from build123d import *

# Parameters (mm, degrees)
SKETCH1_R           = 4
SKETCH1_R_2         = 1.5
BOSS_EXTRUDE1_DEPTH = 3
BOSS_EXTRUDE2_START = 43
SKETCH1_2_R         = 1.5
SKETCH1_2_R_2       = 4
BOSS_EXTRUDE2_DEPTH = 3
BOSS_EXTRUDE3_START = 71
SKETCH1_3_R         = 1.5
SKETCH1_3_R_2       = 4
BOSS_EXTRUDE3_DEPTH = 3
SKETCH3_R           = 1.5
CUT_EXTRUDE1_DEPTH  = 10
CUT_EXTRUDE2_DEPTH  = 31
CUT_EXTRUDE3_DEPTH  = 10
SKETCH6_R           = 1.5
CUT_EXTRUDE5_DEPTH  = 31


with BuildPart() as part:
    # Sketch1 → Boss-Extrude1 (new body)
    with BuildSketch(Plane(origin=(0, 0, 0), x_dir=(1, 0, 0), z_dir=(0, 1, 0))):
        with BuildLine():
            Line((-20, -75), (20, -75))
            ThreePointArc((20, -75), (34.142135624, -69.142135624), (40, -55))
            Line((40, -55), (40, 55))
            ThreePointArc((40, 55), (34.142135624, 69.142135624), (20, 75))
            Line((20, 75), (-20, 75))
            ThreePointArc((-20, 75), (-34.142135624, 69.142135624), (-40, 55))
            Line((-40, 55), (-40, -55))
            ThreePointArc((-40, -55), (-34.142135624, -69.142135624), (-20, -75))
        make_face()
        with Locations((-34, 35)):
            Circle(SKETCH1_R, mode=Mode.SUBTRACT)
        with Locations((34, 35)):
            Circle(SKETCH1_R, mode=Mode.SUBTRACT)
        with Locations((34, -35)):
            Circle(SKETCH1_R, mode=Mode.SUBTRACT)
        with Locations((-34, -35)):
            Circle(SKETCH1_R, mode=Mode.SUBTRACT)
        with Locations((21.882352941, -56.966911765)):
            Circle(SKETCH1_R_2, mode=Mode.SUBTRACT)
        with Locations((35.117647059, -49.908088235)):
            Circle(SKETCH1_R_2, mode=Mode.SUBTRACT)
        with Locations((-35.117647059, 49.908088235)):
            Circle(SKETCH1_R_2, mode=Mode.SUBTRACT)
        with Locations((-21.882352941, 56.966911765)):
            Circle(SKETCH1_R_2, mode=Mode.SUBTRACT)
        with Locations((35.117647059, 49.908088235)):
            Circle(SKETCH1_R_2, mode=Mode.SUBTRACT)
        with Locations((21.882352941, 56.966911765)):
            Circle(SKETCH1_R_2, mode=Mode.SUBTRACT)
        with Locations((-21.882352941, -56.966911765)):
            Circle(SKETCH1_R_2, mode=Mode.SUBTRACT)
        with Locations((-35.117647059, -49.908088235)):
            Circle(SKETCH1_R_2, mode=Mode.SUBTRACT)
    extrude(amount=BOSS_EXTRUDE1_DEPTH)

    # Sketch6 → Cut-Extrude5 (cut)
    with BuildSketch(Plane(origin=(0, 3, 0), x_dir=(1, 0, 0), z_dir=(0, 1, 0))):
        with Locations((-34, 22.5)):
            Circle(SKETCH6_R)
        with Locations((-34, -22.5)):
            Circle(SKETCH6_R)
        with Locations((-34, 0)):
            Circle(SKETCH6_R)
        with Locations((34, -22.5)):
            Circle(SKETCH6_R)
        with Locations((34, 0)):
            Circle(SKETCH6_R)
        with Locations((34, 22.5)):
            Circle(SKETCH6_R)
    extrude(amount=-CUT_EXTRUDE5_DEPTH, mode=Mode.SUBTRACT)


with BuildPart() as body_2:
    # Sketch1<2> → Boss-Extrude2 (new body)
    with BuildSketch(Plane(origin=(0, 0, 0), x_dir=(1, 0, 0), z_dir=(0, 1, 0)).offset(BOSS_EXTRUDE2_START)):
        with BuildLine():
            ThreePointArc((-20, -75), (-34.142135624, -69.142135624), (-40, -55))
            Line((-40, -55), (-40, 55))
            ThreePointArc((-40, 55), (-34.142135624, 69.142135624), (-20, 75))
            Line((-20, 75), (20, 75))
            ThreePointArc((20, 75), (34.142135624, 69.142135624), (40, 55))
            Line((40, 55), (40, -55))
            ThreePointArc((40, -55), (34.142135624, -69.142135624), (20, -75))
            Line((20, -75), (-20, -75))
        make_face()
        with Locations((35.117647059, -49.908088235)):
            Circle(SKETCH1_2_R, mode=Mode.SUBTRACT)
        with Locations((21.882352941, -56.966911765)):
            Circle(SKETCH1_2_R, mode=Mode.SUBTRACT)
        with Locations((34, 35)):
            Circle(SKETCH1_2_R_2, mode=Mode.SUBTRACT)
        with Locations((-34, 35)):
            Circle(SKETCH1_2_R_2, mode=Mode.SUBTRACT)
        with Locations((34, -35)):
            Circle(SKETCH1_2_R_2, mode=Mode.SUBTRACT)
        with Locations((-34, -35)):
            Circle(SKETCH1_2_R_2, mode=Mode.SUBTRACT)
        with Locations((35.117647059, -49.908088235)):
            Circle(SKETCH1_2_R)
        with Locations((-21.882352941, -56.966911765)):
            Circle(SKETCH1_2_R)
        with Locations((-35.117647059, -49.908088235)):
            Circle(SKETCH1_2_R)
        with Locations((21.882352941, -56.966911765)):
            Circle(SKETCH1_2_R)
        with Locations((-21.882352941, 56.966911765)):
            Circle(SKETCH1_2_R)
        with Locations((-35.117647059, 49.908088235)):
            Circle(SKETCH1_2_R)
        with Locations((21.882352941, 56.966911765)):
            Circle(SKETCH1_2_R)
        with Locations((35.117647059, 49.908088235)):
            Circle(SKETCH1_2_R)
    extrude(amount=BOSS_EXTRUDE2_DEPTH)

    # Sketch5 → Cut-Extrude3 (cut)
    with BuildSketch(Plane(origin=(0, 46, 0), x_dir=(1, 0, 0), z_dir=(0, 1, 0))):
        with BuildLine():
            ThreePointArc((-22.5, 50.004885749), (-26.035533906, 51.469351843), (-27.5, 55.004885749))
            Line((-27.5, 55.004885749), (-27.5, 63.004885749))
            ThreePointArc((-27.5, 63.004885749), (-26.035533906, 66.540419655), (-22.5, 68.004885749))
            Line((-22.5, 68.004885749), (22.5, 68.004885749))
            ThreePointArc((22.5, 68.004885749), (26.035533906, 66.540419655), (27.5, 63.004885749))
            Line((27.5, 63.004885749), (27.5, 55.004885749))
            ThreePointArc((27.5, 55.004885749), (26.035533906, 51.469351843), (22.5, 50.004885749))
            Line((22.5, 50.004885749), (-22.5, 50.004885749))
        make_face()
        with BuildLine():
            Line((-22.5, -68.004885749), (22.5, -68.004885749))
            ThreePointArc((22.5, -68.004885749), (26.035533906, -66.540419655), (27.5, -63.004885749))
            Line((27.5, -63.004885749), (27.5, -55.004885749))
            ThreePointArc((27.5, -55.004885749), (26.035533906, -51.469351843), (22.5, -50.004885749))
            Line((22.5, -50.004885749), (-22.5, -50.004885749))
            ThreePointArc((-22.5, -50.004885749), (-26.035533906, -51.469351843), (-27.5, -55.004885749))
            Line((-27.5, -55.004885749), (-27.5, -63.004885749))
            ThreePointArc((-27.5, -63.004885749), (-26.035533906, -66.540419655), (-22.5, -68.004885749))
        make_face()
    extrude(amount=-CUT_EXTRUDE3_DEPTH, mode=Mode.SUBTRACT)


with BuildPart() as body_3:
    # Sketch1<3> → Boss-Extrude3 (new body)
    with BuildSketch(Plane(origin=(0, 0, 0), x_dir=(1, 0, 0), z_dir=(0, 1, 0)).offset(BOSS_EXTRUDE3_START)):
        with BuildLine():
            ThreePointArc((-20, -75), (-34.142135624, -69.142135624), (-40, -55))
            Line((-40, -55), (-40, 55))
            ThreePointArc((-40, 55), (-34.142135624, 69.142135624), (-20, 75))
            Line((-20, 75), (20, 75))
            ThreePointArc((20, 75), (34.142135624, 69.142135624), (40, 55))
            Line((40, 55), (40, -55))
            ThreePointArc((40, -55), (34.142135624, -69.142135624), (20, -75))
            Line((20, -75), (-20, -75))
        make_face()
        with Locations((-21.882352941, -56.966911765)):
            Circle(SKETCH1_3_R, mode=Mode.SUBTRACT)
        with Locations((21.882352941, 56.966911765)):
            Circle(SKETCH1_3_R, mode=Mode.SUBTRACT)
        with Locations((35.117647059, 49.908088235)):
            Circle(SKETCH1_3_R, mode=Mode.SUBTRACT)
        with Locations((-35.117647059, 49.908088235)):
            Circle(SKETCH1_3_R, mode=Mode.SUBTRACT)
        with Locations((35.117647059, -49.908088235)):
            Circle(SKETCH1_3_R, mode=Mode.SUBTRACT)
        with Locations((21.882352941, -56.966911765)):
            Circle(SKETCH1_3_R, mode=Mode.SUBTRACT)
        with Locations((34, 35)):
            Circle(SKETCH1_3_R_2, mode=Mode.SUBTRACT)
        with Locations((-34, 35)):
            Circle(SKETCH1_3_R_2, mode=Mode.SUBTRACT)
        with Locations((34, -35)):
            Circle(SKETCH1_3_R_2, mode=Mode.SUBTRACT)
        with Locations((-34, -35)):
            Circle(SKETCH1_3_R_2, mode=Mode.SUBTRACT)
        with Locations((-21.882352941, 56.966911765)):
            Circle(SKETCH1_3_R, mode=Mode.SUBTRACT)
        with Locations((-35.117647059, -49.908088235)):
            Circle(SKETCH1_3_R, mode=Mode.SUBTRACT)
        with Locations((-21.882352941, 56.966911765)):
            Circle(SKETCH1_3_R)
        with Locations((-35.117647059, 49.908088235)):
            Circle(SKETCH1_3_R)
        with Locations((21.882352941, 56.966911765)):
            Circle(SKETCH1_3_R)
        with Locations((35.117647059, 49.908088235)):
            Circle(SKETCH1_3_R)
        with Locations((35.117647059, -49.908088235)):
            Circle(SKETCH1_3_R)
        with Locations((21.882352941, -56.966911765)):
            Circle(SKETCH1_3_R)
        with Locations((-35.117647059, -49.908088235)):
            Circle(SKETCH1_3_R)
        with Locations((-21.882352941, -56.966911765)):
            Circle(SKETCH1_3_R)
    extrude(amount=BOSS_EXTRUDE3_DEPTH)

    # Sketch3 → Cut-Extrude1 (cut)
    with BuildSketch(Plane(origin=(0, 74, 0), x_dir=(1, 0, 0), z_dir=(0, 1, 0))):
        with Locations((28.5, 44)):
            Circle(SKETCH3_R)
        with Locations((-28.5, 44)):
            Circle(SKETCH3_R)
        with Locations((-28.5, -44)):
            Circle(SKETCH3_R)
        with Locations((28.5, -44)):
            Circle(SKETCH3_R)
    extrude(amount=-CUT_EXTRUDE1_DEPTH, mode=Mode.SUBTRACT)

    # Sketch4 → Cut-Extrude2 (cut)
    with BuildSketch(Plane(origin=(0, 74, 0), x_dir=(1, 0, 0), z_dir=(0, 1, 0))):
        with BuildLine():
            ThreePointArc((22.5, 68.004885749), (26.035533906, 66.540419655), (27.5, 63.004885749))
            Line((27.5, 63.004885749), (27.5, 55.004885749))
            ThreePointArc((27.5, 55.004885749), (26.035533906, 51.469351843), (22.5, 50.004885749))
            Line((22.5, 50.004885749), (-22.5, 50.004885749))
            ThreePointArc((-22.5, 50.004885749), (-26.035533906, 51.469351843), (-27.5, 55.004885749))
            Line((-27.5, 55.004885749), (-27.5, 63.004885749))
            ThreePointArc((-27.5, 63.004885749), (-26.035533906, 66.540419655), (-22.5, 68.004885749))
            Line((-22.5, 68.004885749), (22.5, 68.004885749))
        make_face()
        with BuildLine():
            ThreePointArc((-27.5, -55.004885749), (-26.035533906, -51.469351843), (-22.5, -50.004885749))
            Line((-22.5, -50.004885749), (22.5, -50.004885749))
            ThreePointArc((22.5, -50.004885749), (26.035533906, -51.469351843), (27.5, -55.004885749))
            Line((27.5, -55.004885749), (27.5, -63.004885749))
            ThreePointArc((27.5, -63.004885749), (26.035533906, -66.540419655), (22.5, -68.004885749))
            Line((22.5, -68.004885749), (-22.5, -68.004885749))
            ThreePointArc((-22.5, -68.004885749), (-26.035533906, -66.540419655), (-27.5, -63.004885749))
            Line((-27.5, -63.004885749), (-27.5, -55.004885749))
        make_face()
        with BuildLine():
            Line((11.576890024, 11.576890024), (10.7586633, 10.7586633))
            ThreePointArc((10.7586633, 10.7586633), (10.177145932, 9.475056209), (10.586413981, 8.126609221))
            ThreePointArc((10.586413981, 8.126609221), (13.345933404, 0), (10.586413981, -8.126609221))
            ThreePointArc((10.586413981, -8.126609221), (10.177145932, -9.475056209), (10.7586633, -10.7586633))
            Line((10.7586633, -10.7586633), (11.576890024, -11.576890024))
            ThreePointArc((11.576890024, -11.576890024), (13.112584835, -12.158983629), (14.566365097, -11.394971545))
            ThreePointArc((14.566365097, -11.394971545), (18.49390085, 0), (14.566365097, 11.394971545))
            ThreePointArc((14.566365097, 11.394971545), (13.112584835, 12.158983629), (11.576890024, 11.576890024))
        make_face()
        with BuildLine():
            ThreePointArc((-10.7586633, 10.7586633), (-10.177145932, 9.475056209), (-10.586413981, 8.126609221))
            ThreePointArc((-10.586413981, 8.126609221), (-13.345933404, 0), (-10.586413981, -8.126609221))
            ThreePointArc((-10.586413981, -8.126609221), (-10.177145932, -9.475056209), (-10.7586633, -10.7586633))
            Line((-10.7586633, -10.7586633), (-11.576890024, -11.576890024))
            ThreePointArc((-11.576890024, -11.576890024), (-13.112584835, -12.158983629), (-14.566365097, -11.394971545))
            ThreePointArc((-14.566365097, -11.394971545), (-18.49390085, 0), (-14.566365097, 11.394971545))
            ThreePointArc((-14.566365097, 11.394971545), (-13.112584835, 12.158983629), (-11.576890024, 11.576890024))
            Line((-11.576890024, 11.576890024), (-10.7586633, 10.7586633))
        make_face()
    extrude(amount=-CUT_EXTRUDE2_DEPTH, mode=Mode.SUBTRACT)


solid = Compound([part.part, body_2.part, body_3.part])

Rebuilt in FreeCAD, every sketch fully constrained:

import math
import FreeCAD as App
import Part
import Sketcher

V = App.Vector

doc = App.newDocument("Part")
params = doc.addObject("Spreadsheet::Sheet", "Params")
for row, (alias, value) in enumerate([
    ("sketch1_diameter", "3 mm"),
    ("sketch1_diameter2", "8 mm"),
    ("sketch1_radius", "20 mm"),
    ("sketch1_width", "40 mm"),
    ("sketch1_height", "110 mm"),
    ("pad1_length", "3 mm"),
    ("sketch2_diameter", "3 mm"),
    ("pocket1_length", "31 mm"),
    ("sketch3_diameter", "8 mm"),
    ("sketch3_radius", "20 mm"),
    ("sketch3_width", "40 mm"),
    ("sketch3_height", "110 mm"),
    ("pad2_length", "3 mm"),
    ("sketch4_radius", "5 mm"),
    ("sketch4_width", "45 mm"),
    ("sketch4_height", "8 mm"),
    ("pocket2_length", "10 mm"),
    ("sketch5_diameter", "8 mm"),
    ("sketch5_radius", "20 mm"),
    ("sketch5_width", "40 mm"),
    ("sketch5_height", "110 mm"),
    ("pad3_length", "3 mm"),
    ("sketch6_diameter", "3 mm"),
    ("pocket3_length", "10 mm"),
    ("sketch7_radius", "5 mm"),
    ("sketch7_radius2", "2 mm"),
    ("sketch7_width", "45 mm"),
    ("sketch7_height", "8 mm"),
    ("pocket4_length", "31 mm"),
], start=1):
    params.set(f"A{row}", alias)
    params.set(f"B{row}", "=" + value)
    params.setAlias(f"B{row}", alias)

body = doc.addObject("PartDesign::Body", "Body")

# Sketch on XZ plane
sketch1 = doc.addObject("Sketcher::SketchObject", "Sketch")
body.addObject(sketch1)
sketch1.AttachmentSupport = (doc.XZ_Plane, [""])
sketch1.MapMode = "FlatFace"
sketch1.addGeometry([
    Part.LineSegment(V(-20, 75, 0), V(20, 75, 0)),  # 0
    Part.ArcOfCircle(Part.Circle(V(20, 55, 0), V(0, 0, 1), 20), math.radians(0), math.radians(90)),  # 1
    Part.LineSegment(V(40, 55, 0), V(40, -55, 0)),  # 2
    Part.ArcOfCircle(Part.Circle(V(20, -55, 0), V(0, 0, 1), 20), math.radians(-90), math.radians(0)),  # 3
    Part.LineSegment(V(20, -75, 0), V(-20, -75, 0)),  # 4
    Part.ArcOfCircle(Part.Circle(V(-20, -55, 0), V(0, 0, 1), 20), math.radians(180), math.radians(270)),  # 5
    Part.LineSegment(V(-40, -55, 0), V(-40, 55, 0)),  # 6
    Part.ArcOfCircle(Part.Circle(V(-20, 55, 0), V(0, 0, 1), 20), math.radians(90), math.radians(180)),  # 7
    Part.Circle(V(-35.1, 49.9, 0), V(0, 0, 1), 1.5),  # 8
    Part.Circle(V(-21.9, 57, 0), V(0, 0, 1), 1.5),  # 9
    Part.Circle(V(-34, 35, 0), V(0, 0, 1), 4),  # 10
    Part.Circle(V(21.9, 57, 0), V(0, 0, 1), 1.5),  # 11
    Part.Circle(V(35.1, 49.9, 0), V(0, 0, 1), 1.5),  # 12
    Part.Circle(V(34, 35, 0), V(0, 0, 1), 4),  # 13
    Part.Circle(V(-34, -35, 0), V(0, 0, 1), 4),  # 14
    Part.Circle(V(-35.1, -49.9, 0), V(0, 0, 1), 1.5),  # 15
    Part.Circle(V(-21.9, -57, 0), V(0, 0, 1), 1.5),  # 16
    Part.Circle(V(34, -35, 0), V(0, 0, 1), 4),  # 17
    Part.Circle(V(21.9, -57, 0), V(0, 0, 1), 1.5),  # 18
    Part.Circle(V(35.1, -49.9, 0), V(0, 0, 1), 1.5),  # 19
], False)
sketch1.addConstraint([
    Sketcher.Constraint("Tangent", 0, 2, 1, 2),
    Sketcher.Constraint("Tangent", 1, 1, 2, 1),
    Sketcher.Constraint("Tangent", 2, 2, 3, 2),
    Sketcher.Constraint("Tangent", 3, 1, 4, 1),
    Sketcher.Constraint("Tangent", 4, 2, 5, 2),
    Sketcher.Constraint("Tangent", 5, 1, 6, 1),
    Sketcher.Constraint("Tangent", 6, 2, 7, 2),
    Sketcher.Constraint("Tangent", 7, 1, 0, 1),
    Sketcher.Constraint("Horizontal", 0),
    Sketcher.Constraint("Vertical", 2),
    Sketcher.Constraint("Horizontal", 4),
    Sketcher.Constraint("Vertical", 6),
    Sketcher.Constraint("Equal", 1, 3),
    Sketcher.Constraint("Equal", 3, 5),
    Sketcher.Constraint("Equal", 5, 7),
    Sketcher.Constraint("Equal", 8, 9),
    Sketcher.Constraint("Equal", 9, 11),
    Sketcher.Constraint("Equal", 11, 12),
    Sketcher.Constraint("Equal", 10, 13),
    Sketcher.Constraint("Equal", 13, 14),
    Sketcher.Constraint("Equal", 12, 15),
    Sketcher.Constraint("Equal", 15, 16),
    Sketcher.Constraint("Equal", 14, 17),
    Sketcher.Constraint("Equal", 16, 18),
    Sketcher.Constraint("Equal", 18, 19),
    Sketcher.Constraint("Symmetric", 1, 3, 5, 3, -1, 1),
    Sketcher.Constraint("Symmetric", 13, 3, 14, 3, -1, 1),
    Sketcher.Constraint("Symmetric", 12, 3, 15, 3, -1, 1),
    Sketcher.Constraint("Symmetric", 11, 3, 16, 3, -1, 1),
    Sketcher.Constraint("Symmetric", 10, 3, 17, 3, -1, 1),
    Sketcher.Constraint("Symmetric", 9, 3, 18, 3, -1, 1),
    Sketcher.Constraint("Symmetric", 8, 3, 19, 3, -1, 1),
    Sketcher.Constraint("Symmetric", 9, 3, 11, 3, -2),
    Sketcher.Constraint("Symmetric", 8, 3, 12, 3, -2),
    Sketcher.Constraint("Symmetric", 10, 3, 13, 3, -2),
    Sketcher.Constraint("Diameter", 8, 3.0),
    Sketcher.Constraint("Diameter", 10, 8.0),
    Sketcher.Constraint("Radius", 1, 20.0),
    Sketcher.Constraint("DistanceX", 0, 1, 0, 2, 40.0),
    Sketcher.Constraint("DistanceY", 2, 2, 2, 1, 110.0),
    Sketcher.Constraint("DistanceX", 10, 3, -1, 1, 34.0),
    Sketcher.Constraint("DistanceY", -1, 1, 10, 3, 35.0),
    Sketcher.Constraint("DistanceX", 8, 3, 11, 3, 57.0),
    Sketcher.Constraint("DistanceY", -1, 1, 8, 3, 49.908088),
    Sketcher.Constraint("DistanceY", -1, 1, 9, 3, 56.966912),
    Sketcher.Constraint("DistanceX", 8, 3, -1, 1, 35.117647),
])
sketch1.setExpression("Constraints[35]", "Params.sketch1_diameter")
sketch1.setExpression("Constraints[36]", "Params.sketch1_diameter2")
sketch1.setExpression("Constraints[37]", "Params.sketch1_radius")
sketch1.setExpression("Constraints[38]", "Params.sketch1_width")
sketch1.setExpression("Constraints[39]", "Params.sketch1_height")
pad1 = doc.addObject("PartDesign::Pad", "Pad")
body.addObject(pad1)
pad1.Profile = sketch1
pad1.setExpression("Length", "Params.pad1_length")
pad1.Reversed = True

# Sketch on XZ plane
sketch2 = doc.addObject("Sketcher::SketchObject", "Sketch001")
body.addObject(sketch2)
sketch2.AttachmentSupport = (doc.XZ_Plane, [""])
sketch2.MapMode = "FlatFace"
sketch2.AttachmentOffset = App.Placement(V(0, 0, -3), App.Rotation())
sketch2.addGeometry([
    Part.Circle(V(-34, -22.5, 0), V(0, 0, 1), 1.5),  # 0
    Part.Circle(V(-34, 22.5, 0), V(0, 0, 1), 1.5),  # 1
    Part.Circle(V(-34, 0, 0), V(0, 0, 1), 1.5),  # 2
    Part.Circle(V(34, 22.5, 0), V(0, 0, 1), 1.5),  # 3
    Part.Circle(V(34, 0, 0), V(0, 0, 1), 1.5),  # 4
    Part.Circle(V(34, -22.5, 0), V(0, 0, 1), 1.5),  # 5
], False)
sketch2.addConstraint([
    Sketcher.Constraint("Equal", 0, 1),
    Sketcher.Constraint("Equal", 1, 2),
    Sketcher.Constraint("Equal", 2, 3),
    Sketcher.Constraint("Equal", 3, 4),
    Sketcher.Constraint("Equal", 4, 5),
    Sketcher.Constraint("Symmetric", 0, 3, 3, 3, -1, 1),
    Sketcher.Constraint("Symmetric", 2, 3, 4, 3, -1, 1),
    Sketcher.Constraint("Symmetric", 1, 3, 5, 3, -1, 1),
    Sketcher.Constraint("Symmetric", 1, 3, 3, 3, -2),
    Sketcher.Constraint("PointOnObject", 2, 3, -1),
    Sketcher.Constraint("Vertical", 1, 3, 2, 3),
    Sketcher.Constraint("Diameter", 0, 3.0),
    Sketcher.Constraint("DistanceX", 0, 3, -1, 1, 34.0),
    Sketcher.Constraint("DistanceY", 0, 3, 1, 3, 45.0),
])
sketch2.setExpression("Constraints[11]", "Params.sketch2_diameter")
pocket1 = doc.addObject("PartDesign::Pocket", "Pocket")
body.addObject(pocket1)
pocket1.Profile = sketch2
pocket1.setExpression("Length", "Params.pocket1_length")
pocket1.Reversed = True
body2 = doc.addObject("PartDesign::Body", "Body001")

# Sketch on XZ plane
sketch3 = doc.addObject("Sketcher::SketchObject", "Sketch002")
body2.addObject(sketch3)
sketch3.AttachmentSupport = (doc.getObject("XZ_Plane001"), [""])
sketch3.MapMode = "FlatFace"
sketch3.AttachmentOffset = App.Placement(V(0, 0, -43), App.Rotation())
sketch3.addGeometry([
    Part.ArcOfCircle(Part.Circle(V(-20, 55, 0), V(0, 0, 1), 20), math.radians(90), math.radians(180)),  # 0
    Part.LineSegment(V(-20, 75, 0), V(20, 75, 0)),  # 1
    Part.ArcOfCircle(Part.Circle(V(20, 55, 0), V(0, 0, 1), 20), math.radians(0), math.radians(90)),  # 2
    Part.LineSegment(V(40, 55, 0), V(40, -55, 0)),  # 3
    Part.ArcOfCircle(Part.Circle(V(20, -55, 0), V(0, 0, 1), 20), math.radians(-90), math.radians(0)),  # 4
    Part.LineSegment(V(20, -75, 0), V(-20, -75, 0)),  # 5
    Part.ArcOfCircle(Part.Circle(V(-20, -55, 0), V(0, 0, 1), 20), math.radians(180), math.radians(270)),  # 6
    Part.LineSegment(V(-40, -55, 0), V(-40, 55, 0)),  # 7
    Part.Circle(V(34, 35, 0), V(0, 0, 1), 4),  # 8
    Part.Circle(V(-34, 35, 0), V(0, 0, 1), 4),  # 9
    Part.Circle(V(34, -35, 0), V(0, 0, 1), 4),  # 10
    Part.Circle(V(-34, -35, 0), V(0, 0, 1), 4),  # 11
], False)
sketch3.addConstraint([
    Sketcher.Constraint("Tangent", 0, 1, 1, 1),
    Sketcher.Constraint("Tangent", 1, 2, 2, 2),
    Sketcher.Constraint("Tangent", 2, 1, 3, 1),
    Sketcher.Constraint("Tangent", 3, 2, 4, 2),
    Sketcher.Constraint("Tangent", 4, 1, 5, 1),
    Sketcher.Constraint("Tangent", 5, 2, 6, 2),
    Sketcher.Constraint("Tangent", 6, 1, 7, 1),
    Sketcher.Constraint("Tangent", 7, 2, 0, 2),
    Sketcher.Constraint("Horizontal", 1),
    Sketcher.Constraint("Vertical", 3),
    Sketcher.Constraint("Horizontal", 5),
    Sketcher.Constraint("Vertical", 7),
    Sketcher.Constraint("Equal", 0, 2),
    Sketcher.Constraint("Equal", 2, 4),
    Sketcher.Constraint("Equal", 4, 6),
    Sketcher.Constraint("Equal", 8, 9),
    Sketcher.Constraint("Equal", 9, 10),
    Sketcher.Constraint("Equal", 10, 11),
    Sketcher.Constraint("Symmetric", 0, 3, 4, 3, -1, 1),
    Sketcher.Constraint("Symmetric", 9, 3, 10, 3, -1, 1),
    Sketcher.Constraint("Symmetric", 8, 3, 11, 3, -1, 1),
    Sketcher.Constraint("Symmetric", 8, 3, 9, 3, -2),
    Sketcher.Constraint("Diameter", 8, 8.0),
    Sketcher.Constraint("Radius", 0, 20.0),
    Sketcher.Constraint("DistanceX", 1, 1, 1, 2, 40.0),
    Sketcher.Constraint("DistanceY", 3, 2, 3, 1, 110.0),
    Sketcher.Constraint("DistanceX", -1, 1, 8, 3, 34.0),
    Sketcher.Constraint("DistanceY", -1, 1, 8, 3, 35.0),
])
sketch3.setExpression("Constraints[22]", "Params.sketch3_diameter")
sketch3.setExpression("Constraints[23]", "Params.sketch3_radius")
sketch3.setExpression("Constraints[24]", "Params.sketch3_width")
sketch3.setExpression("Constraints[25]", "Params.sketch3_height")
pad2 = doc.addObject("PartDesign::Pad", "Pad001")
body2.addObject(pad2)
pad2.Profile = sketch3
pad2.setExpression("Length", "Params.pad2_length")
pad2.Reversed = True

# Sketch on XZ plane
sketch4 = doc.addObject("Sketcher::SketchObject", "Sketch003")
body2.addObject(sketch4)
sketch4.AttachmentSupport = (doc.getObject("XZ_Plane001"), [""])
sketch4.MapMode = "FlatFace"
sketch4.AttachmentOffset = App.Placement(V(0, 0, -46), App.Rotation())
sketch4.addGeometry([
    Part.ArcOfCircle(Part.Circle(V(-22, -55, 0), V(0, 0, 1), 5), math.radians(90), math.radians(180)),  # 0
    Part.LineSegment(V(-22, -50, 0), V(22, -50, 0)),  # 1
    Part.ArcOfCircle(Part.Circle(V(22, -55, 0), V(0, 0, 1), 5), math.radians(0), math.radians(90)),  # 2
    Part.LineSegment(V(28, -55, 0), V(28, -63, 0)),  # 3
    Part.ArcOfCircle(Part.Circle(V(22, -63, 0), V(0, 0, 1), 5), math.radians(-90), math.radians(0)),  # 4
    Part.LineSegment(V(22, -68, 0), V(-22, -68, 0)),  # 5
    Part.ArcOfCircle(Part.Circle(V(-22, -63, 0), V(0, 0, 1), 5), math.radians(180), math.radians(270)),  # 6
    Part.LineSegment(V(-28, -63, 0), V(-28, -55, 0)),  # 7
    Part.LineSegment(V(-22, 68, 0), V(22, 68, 0)),  # 8
    Part.ArcOfCircle(Part.Circle(V(22, 63, 0), V(0, 0, 1), 5), math.radians(0), math.radians(90)),  # 9
    Part.LineSegment(V(28, 63, 0), V(28, 55, 0)),  # 10
    Part.ArcOfCircle(Part.Circle(V(22, 55, 0), V(0, 0, 1), 5), math.radians(-90), math.radians(0)),  # 11
    Part.LineSegment(V(22, 50, 0), V(-22, 50, 0)),  # 12
    Part.ArcOfCircle(Part.Circle(V(-22, 55, 0), V(0, 0, 1), 5), math.radians(180), math.radians(270)),  # 13
    Part.LineSegment(V(-28, 55, 0), V(-28, 63, 0)),  # 14
    Part.ArcOfCircle(Part.Circle(V(-22, 63, 0), V(0, 0, 1), 5), math.radians(90), math.radians(180)),  # 15
], False)
sketch4.addConstraint([
    Sketcher.Constraint("Tangent", 0, 1, 1, 1),
    Sketcher.Constraint("Tangent", 1, 2, 2, 2),
    Sketcher.Constraint("Tangent", 2, 1, 3, 1),
    Sketcher.Constraint("Tangent", 3, 2, 4, 2),
    Sketcher.Constraint("Tangent", 4, 1, 5, 1),
    Sketcher.Constraint("Tangent", 5, 2, 6, 2),
    Sketcher.Constraint("Tangent", 6, 1, 7, 1),
    Sketcher.Constraint("Tangent", 7, 2, 0, 2),
    Sketcher.Constraint("Tangent", 8, 2, 9, 2),
    Sketcher.Constraint("Tangent", 9, 1, 10, 1),
    Sketcher.Constraint("Tangent", 10, 2, 11, 2),
    Sketcher.Constraint("Tangent", 11, 1, 12, 1),
    Sketcher.Constraint("Tangent", 12, 2, 13, 2),
    Sketcher.Constraint("Tangent", 13, 1, 14, 1),
    Sketcher.Constraint("Tangent", 14, 2, 15, 2),
    Sketcher.Constraint("Tangent", 15, 1, 8, 1),
    Sketcher.Constraint("Horizontal", 1),
    Sketcher.Constraint("Vertical", 3),
    Sketcher.Constraint("Horizontal", 5),
    Sketcher.Constraint("Vertical", 7),
    Sketcher.Constraint("Horizontal", 8),
    Sketcher.Constraint("Vertical", 10),
    Sketcher.Constraint("Horizontal", 12),
    Sketcher.Constraint("Vertical", 14),
    Sketcher.Constraint("Equal", 0, 2),
    Sketcher.Constraint("Equal", 2, 4),
    Sketcher.Constraint("Equal", 4, 6),
    Sketcher.Constraint("Equal", 6, 9),
    Sketcher.Constraint("Equal", 9, 11),
    Sketcher.Constraint("Equal", 11, 13),
    Sketcher.Constraint("Equal", 13, 15),
    Sketcher.Constraint("Symmetric", 6, 3, 9, 3, -1, 1),
    Sketcher.Constraint("Symmetric", 2, 3, 13, 3, -1, 1),
    Sketcher.Constraint("Vertical", 4, 3, 9, 3),
    Sketcher.Constraint("Radius", 0, 5.0),
    Sketcher.Constraint("DistanceX", 1, 1, 1, 2, 45.0),
    Sketcher.Constraint("DistanceY", 3, 2, 3, 1, 8.0),
    Sketcher.Constraint("DistanceY", 2, 3, 9, 3, 118.009771),
])
sketch4.setExpression("Constraints[34]", "Params.sketch4_radius")
sketch4.setExpression("Constraints[35]", "Params.sketch4_width")
sketch4.setExpression("Constraints[36]", "Params.sketch4_height")
pocket2 = doc.addObject("PartDesign::Pocket", "Pocket001")
body2.addObject(pocket2)
pocket2.Profile = sketch4
pocket2.setExpression("Length", "Params.pocket2_length")
pocket2.Reversed = True
body3 = doc.addObject("PartDesign::Body", "Body002")

# Sketch on XZ plane
sketch5 = doc.addObject("Sketcher::SketchObject", "Sketch004")
body3.addObject(sketch5)
sketch5.AttachmentSupport = (doc.getObject("XZ_Plane002"), [""])
sketch5.MapMode = "FlatFace"
sketch5.AttachmentOffset = App.Placement(V(0, 0, -71), App.Rotation())
sketch5.addGeometry([
    Part.ArcOfCircle(Part.Circle(V(-20, 55, 0), V(0, 0, 1), 20), math.radians(90), math.radians(180)),  # 0
    Part.LineSegment(V(-20, 75, 0), V(20, 75, 0)),  # 1
    Part.ArcOfCircle(Part.Circle(V(20, 55, 0), V(0, 0, 1), 20), math.radians(0), math.radians(90)),  # 2
    Part.LineSegment(V(40, 55, 0), V(40, -55, 0)),  # 3
    Part.ArcOfCircle(Part.Circle(V(20, -55, 0), V(0, 0, 1), 20), math.radians(-90), math.radians(0)),  # 4
    Part.LineSegment(V(20, -75, 0), V(-20, -75, 0)),  # 5
    Part.ArcOfCircle(Part.Circle(V(-20, -55, 0), V(0, 0, 1), 20), math.radians(180), math.radians(270)),  # 6
    Part.LineSegment(V(-40, -55, 0), V(-40, 55, 0)),  # 7
    Part.Circle(V(34, 35, 0), V(0, 0, 1), 4),  # 8
    Part.Circle(V(-34, 35, 0), V(0, 0, 1), 4),  # 9
    Part.Circle(V(34, -35, 0), V(0, 0, 1), 4),  # 10
    Part.Circle(V(-34, -35, 0), V(0, 0, 1), 4),  # 11
], False)
sketch5.addConstraint([
    Sketcher.Constraint("Tangent", 0, 1, 1, 1),
    Sketcher.Constraint("Tangent", 1, 2, 2, 2),
    Sketcher.Constraint("Tangent", 2, 1, 3, 1),
    Sketcher.Constraint("Tangent", 3, 2, 4, 2),
    Sketcher.Constraint("Tangent", 4, 1, 5, 1),
    Sketcher.Constraint("Tangent", 5, 2, 6, 2),
    Sketcher.Constraint("Tangent", 6, 1, 7, 1),
    Sketcher.Constraint("Tangent", 7, 2, 0, 2),
    Sketcher.Constraint("Horizontal", 1),
    Sketcher.Constraint("Vertical", 3),
    Sketcher.Constraint("Horizontal", 5),
    Sketcher.Constraint("Vertical", 7),
    Sketcher.Constraint("Equal", 0, 2),
    Sketcher.Constraint("Equal", 2, 4),
    Sketcher.Constraint("Equal", 4, 6),
    Sketcher.Constraint("Equal", 8, 9),
    Sketcher.Constraint("Equal", 9, 10),
    Sketcher.Constraint("Equal", 10, 11),
    Sketcher.Constraint("Symmetric", 0, 3, 4, 3, -1, 1),
    Sketcher.Constraint("Symmetric", 9, 3, 10, 3, -1, 1),
    Sketcher.Constraint("Symmetric", 8, 3, 11, 3, -1, 1),
    Sketcher.Constraint("Symmetric", 8, 3, 9, 3, -2),
    Sketcher.Constraint("Diameter", 8, 8.0),
    Sketcher.Constraint("Radius", 0, 20.0),
    Sketcher.Constraint("DistanceX", 1, 1, 1, 2, 40.0),
    Sketcher.Constraint("DistanceY", 3, 2, 3, 1, 110.0),
    Sketcher.Constraint("DistanceX", -1, 1, 8, 3, 34.0),
    Sketcher.Constraint("DistanceY", -1, 1, 8, 3, 35.0),
])
sketch5.setExpression("Constraints[22]", "Params.sketch5_diameter")
sketch5.setExpression("Constraints[23]", "Params.sketch5_radius")
sketch5.setExpression("Constraints[24]", "Params.sketch5_width")
sketch5.setExpression("Constraints[25]", "Params.sketch5_height")
pad3 = doc.addObject("PartDesign::Pad", "Pad002")
body3.addObject(pad3)
pad3.Profile = sketch5
pad3.setExpression("Length", "Params.pad3_length")
pad3.Reversed = True

# Sketch on XZ plane
sketch6 = doc.addObject("Sketcher::SketchObject", "Sketch005")
body3.addObject(sketch6)
sketch6.AttachmentSupport = (doc.getObject("XZ_Plane002"), [""])
sketch6.MapMode = "FlatFace"
sketch6.AttachmentOffset = App.Placement(V(0, 0, -74), App.Rotation())
sketch6.addGeometry([
    Part.Circle(V(28.5, -44, 0), V(0, 0, 1), 1.5),
    Part.Circle(V(-28.5, -44, 0), V(0, 0, 1), 1.5),
    Part.Circle(V(-28.5, 44, 0), V(0, 0, 1), 1.5),
    Part.Circle(V(28.5, 44, 0), V(0, 0, 1), 1.5),
], False)
sketch6.addConstraint([
    Sketcher.Constraint("Equal", 0, 1),
    Sketcher.Constraint("Equal", 1, 2),
    Sketcher.Constraint("Equal", 2, 3),
    Sketcher.Constraint("Symmetric", 0, 3, 2, 3, -1, 1),
    Sketcher.Constraint("Symmetric", 1, 3, 3, 3, -1, 1),
    Sketcher.Constraint("Symmetric", 0, 3, 1, 3, -2),
    Sketcher.Constraint("Diameter", 0, 3.0),
    Sketcher.Constraint("DistanceY", 0, 3, -1, 1, 44.0),
    Sketcher.Constraint("DistanceX", 1, 3, 0, 3, 57.0),
])
sketch6.setExpression("Constraints[6]", "Params.sketch6_diameter")
pocket3 = doc.addObject("PartDesign::Pocket", "Pocket002")
body3.addObject(pocket3)
pocket3.Profile = sketch6
pocket3.setExpression("Length", "Params.pocket3_length")
pocket3.Reversed = True

# Sketch on XZ plane
sketch7 = doc.addObject("Sketcher::SketchObject", "Sketch006")
body3.addObject(sketch7)
sketch7.AttachmentSupport = (doc.getObject("XZ_Plane002"), [""])
sketch7.MapMode = "FlatFace"
sketch7.AttachmentOffset = App.Placement(V(0, 0, -74), App.Rotation())
sketch7.addGeometry([
    Part.ArcOfCircle(Part.Circle(V(22.5, -63, 0), V(0, 0, 1), 5), math.radians(-90), math.radians(0)),  # 0
    Part.LineSegment(V(22.5, -68, 0), V(-22.5, -68, 0)),  # 1
    Part.ArcOfCircle(Part.Circle(V(-22.5, -63, 0), V(0, 0, 1), 5), math.radians(180), math.radians(270)),  # 2
    Part.LineSegment(V(-27.5, -63, 0), V(-27.5, -55, 0)),  # 3
    Part.ArcOfCircle(Part.Circle(V(-22.5, -55, 0), V(0, 0, 1), 5), math.radians(90), math.radians(180)),  # 4
    Part.LineSegment(V(-22.5, -50, 0), V(22.5, -50, 0)),  # 5
    Part.ArcOfCircle(Part.Circle(V(22.5, -55, 0), V(0, 0, 1), 5), math.radians(0), math.radians(90)),  # 6
    Part.LineSegment(V(27.5, -55, 0), V(27.5, -63, 0)),  # 7
    Part.ArcOfCircle(Part.Circle(V(-22.5, 55, 0), V(0, 0, 1), 5), math.radians(180), math.radians(270)),  # 8
    Part.LineSegment(V(-27.5, 55, 0), V(-27.5, 63, 0)),  # 9
    Part.ArcOfCircle(Part.Circle(V(-22.5, 63, 0), V(0, 0, 1), 5), math.radians(90), math.radians(180)),  # 10
    Part.LineSegment(V(-22.5, 68, 0), V(22.5, 68, 0)),  # 11
    Part.ArcOfCircle(Part.Circle(V(22.5, 63, 0), V(0, 0, 1), 5), math.radians(0), math.radians(90)),  # 12
    Part.LineSegment(V(27.5, 63, 0), V(27.5, 55, 0)),  # 13
    Part.ArcOfCircle(Part.Circle(V(22.5, 55, 0), V(0, 0, 1), 5), math.radians(-90), math.radians(0)),  # 14
    Part.LineSegment(V(22.5, 50, 0), V(-22.5, 50, 0)),  # 15
    Part.LineSegment(V(11.6, -11.6, 0), V(10.8, -10.8, 0)),  # 16
    Part.ArcOfCircle(Part.Circle(V(12.2, -9.3, 0), V(0, 0, 1), 2), math.radians(142), math.radians(225)),  # 17
    Part.ArcOfCircle(Part.Circle(V(0, 0, 0), V(0, 0, 1), 13.3), math.radians(-38), math.radians(38)),  # 18
    Part.ArcOfCircle(Part.Circle(V(12.2, 9.3, 0), V(0, 0, 1), 2), math.radians(135), math.radians(218)),  # 19
    Part.LineSegment(V(10.8, 10.8, 0), V(11.6, 11.6, 0)),  # 20
    Part.ArcOfCircle(Part.Circle(V(13, 10.2, 0), V(0, 0, 1), 2), math.radians(38), math.radians(135)),  # 21
    Part.ArcOfCircle(Part.Circle(V(0, 0, 0), V(0, 0, 1), 18.5), math.radians(-38), math.radians(38)),  # 22
    Part.ArcOfCircle(Part.Circle(V(13, -10.2, 0), V(0, 0, 1), 2), math.radians(-135), math.radians(-38)),  # 23
    Part.ArcOfCircle(Part.Circle(V(-12.2, -9.3, 0), V(0, 0, 1), 2), math.radians(-45), math.radians(38)),  # 24
    Part.LineSegment(V(-10.8, -10.8, 0), V(-11.6, -11.6, 0)),  # 25
    Part.ArcOfCircle(Part.Circle(V(-13, -10.2, 0), V(0, 0, 1), 2), math.radians(-142), math.radians(-45)),  # 26
    Part.ArcOfCircle(Part.Circle(V(0, 0, 0), V(0, 0, 1), 18.5), math.radians(142), math.radians(218)),  # 27
    Part.ArcOfCircle(Part.Circle(V(-13, 10.2, 0), V(0, 0, 1), 2), math.radians(45), math.radians(142)),  # 28
    Part.LineSegment(V(-11.6, 11.6, 0), V(-10.8, 10.8, 0)),  # 29
    Part.ArcOfCircle(Part.Circle(V(-12.2, 9.3, 0), V(0, 0, 1), 2), math.radians(-38), math.radians(45)),  # 30
    Part.ArcOfCircle(Part.Circle(V(0, 0, 0), V(0, 0, 1), 13.3), math.radians(142), math.radians(218)),  # 31
], False)
sketch7.addConstraint([
    Sketcher.Constraint("Tangent", 0, 1, 1, 1),
    Sketcher.Constraint("Tangent", 1, 2, 2, 2),
    Sketcher.Constraint("Tangent", 2, 1, 3, 1),
    Sketcher.Constraint("Tangent", 3, 2, 4, 2),
    Sketcher.Constraint("Tangent", 4, 1, 5, 1),
    Sketcher.Constraint("Tangent", 5, 2, 6, 2),
    Sketcher.Constraint("Tangent", 6, 1, 7, 1),
    Sketcher.Constraint("Tangent", 7, 2, 0, 2),
    Sketcher.Constraint("Tangent", 8, 1, 9, 1),
    Sketcher.Constraint("Tangent", 9, 2, 10, 2),
    Sketcher.Constraint("Tangent", 10, 1, 11, 1),
    Sketcher.Constraint("Tangent", 11, 2, 12, 2),
    Sketcher.Constraint("Tangent", 12, 1, 13, 1),
    Sketcher.Constraint("Tangent", 13, 2, 14, 2),
    Sketcher.Constraint("Tangent", 14, 1, 15, 1),
    Sketcher.Constraint("Tangent", 15, 2, 8, 2),
    Sketcher.Constraint("Tangent", 16, 2, 17, 2),
    Sketcher.Constraint("Tangent", 17, 1, 18, 1),
    Sketcher.Constraint("Tangent", 18, 2, 19, 2),
    Sketcher.Constraint("Tangent", 19, 1, 20, 1),
    Sketcher.Constraint("Tangent", 20, 2, 21, 2),
    Sketcher.Constraint("Tangent", 21, 1, 22, 2),
    Sketcher.Constraint("Tangent", 22, 1, 23, 2),
    Sketcher.Constraint("Tangent", 23, 1, 16, 1),
    Sketcher.Constraint("Tangent", 24, 1, 25, 1),
    Sketcher.Constraint("Tangent", 25, 2, 26, 2),
    Sketcher.Constraint("Tangent", 26, 1, 27, 2),
    Sketcher.Constraint("Tangent", 27, 1, 28, 2),
    Sketcher.Constraint("Tangent", 28, 1, 29, 1),
    Sketcher.Constraint("Tangent", 29, 2, 30, 2),
    Sketcher.Constraint("Tangent", 30, 1, 31, 1),
    Sketcher.Constraint("Tangent", 31, 2, 24, 2),
    Sketcher.Constraint("Horizontal", 1),
    Sketcher.Constraint("Vertical", 3),
    Sketcher.Constraint("Horizontal", 5),
    Sketcher.Constraint("Vertical", 7),
    Sketcher.Constraint("Vertical", 9),
    Sketcher.Constraint("Horizontal", 11),
    Sketcher.Constraint("Vertical", 13),
    Sketcher.Constraint("Horizontal", 15),
    Sketcher.Constraint("Coincident", 18, 3, -1, 1),
    Sketcher.Constraint("Coincident", 22, 3, -1, 1),
    Sketcher.Constraint("Coincident", 27, 3, -1, 1),
    Sketcher.Constraint("Coincident", 31, 3, -1, 1),
    Sketcher.Constraint("Equal", 0, 2),
    Sketcher.Constraint("Equal", 2, 4),
    Sketcher.Constraint("Equal", 4, 6),
    Sketcher.Constraint("Equal", 6, 8),
    Sketcher.Constraint("Equal", 8, 10),
    Sketcher.Constraint("Equal", 10, 12),
    Sketcher.Constraint("Equal", 12, 14),
    Sketcher.Constraint("Equal", 17, 19),
    Sketcher.Constraint("Equal", 19, 21),
    Sketcher.Constraint("Equal", 21, 23),
    Sketcher.Constraint("Equal", 23, 24),
    Sketcher.Constraint("Equal", 24, 26),
    Sketcher.Constraint("Equal", 22, 27),
    Sketcher.Constraint("Equal", 26, 28),
    Sketcher.Constraint("Equal", 28, 30),
    Sketcher.Constraint("Equal", 18, 31),
    Sketcher.Constraint("Symmetric", 6, 3, 8, 3, -1, 1),
    Sketcher.Constraint("Symmetric", 2, 3, 12, 3, -1, 1),
    Sketcher.Constraint("Symmetric", 19, 1, 24, 1, -1, 1),
    Sketcher.Constraint("Symmetric", 23, 1, 28, 1, -1, 1),
    Sketcher.Constraint("Symmetric", 16, 2, 24, 1, -2),
    Sketcher.Constraint("Perpendicular", 16, 20),
    Sketcher.Constraint("Vertical", 4, 3, 8, 3),
    Sketcher.Constraint("Radius", 0, 5.0),
    Sketcher.Constraint("Radius", 17, 2.0),
    Sketcher.Constraint("DistanceX", 1, 2, 1, 1, 45.0),
    Sketcher.Constraint("DistanceY", 3, 1, 3, 2, 8.0),
    Sketcher.Constraint("Radius", 22, 18.493901),
    Sketcher.Constraint("Radius", 18, 13.345933),
    Sketcher.Constraint("DistanceY", 17, 3, 19, 3, 18.688899),
    Sketcher.Constraint("DistanceY", 4, 3, 8, 3, 110.009771),
])
sketch7.setExpression("Constraints[67]", "Params.sketch7_radius")
sketch7.setExpression("Constraints[68]", "Params.sketch7_radius2")
sketch7.setExpression("Constraints[69]", "Params.sketch7_width")
sketch7.setExpression("Constraints[70]", "Params.sketch7_height")
pocket4 = doc.addObject("PartDesign::Pocket", "Pocket003")
body3.addObject(pocket4)
pocket4.Profile = sketch7
pocket4.setExpression("Length", "Params.pocket4_length")
pocket4.Reversed = True

doc.recompute()
